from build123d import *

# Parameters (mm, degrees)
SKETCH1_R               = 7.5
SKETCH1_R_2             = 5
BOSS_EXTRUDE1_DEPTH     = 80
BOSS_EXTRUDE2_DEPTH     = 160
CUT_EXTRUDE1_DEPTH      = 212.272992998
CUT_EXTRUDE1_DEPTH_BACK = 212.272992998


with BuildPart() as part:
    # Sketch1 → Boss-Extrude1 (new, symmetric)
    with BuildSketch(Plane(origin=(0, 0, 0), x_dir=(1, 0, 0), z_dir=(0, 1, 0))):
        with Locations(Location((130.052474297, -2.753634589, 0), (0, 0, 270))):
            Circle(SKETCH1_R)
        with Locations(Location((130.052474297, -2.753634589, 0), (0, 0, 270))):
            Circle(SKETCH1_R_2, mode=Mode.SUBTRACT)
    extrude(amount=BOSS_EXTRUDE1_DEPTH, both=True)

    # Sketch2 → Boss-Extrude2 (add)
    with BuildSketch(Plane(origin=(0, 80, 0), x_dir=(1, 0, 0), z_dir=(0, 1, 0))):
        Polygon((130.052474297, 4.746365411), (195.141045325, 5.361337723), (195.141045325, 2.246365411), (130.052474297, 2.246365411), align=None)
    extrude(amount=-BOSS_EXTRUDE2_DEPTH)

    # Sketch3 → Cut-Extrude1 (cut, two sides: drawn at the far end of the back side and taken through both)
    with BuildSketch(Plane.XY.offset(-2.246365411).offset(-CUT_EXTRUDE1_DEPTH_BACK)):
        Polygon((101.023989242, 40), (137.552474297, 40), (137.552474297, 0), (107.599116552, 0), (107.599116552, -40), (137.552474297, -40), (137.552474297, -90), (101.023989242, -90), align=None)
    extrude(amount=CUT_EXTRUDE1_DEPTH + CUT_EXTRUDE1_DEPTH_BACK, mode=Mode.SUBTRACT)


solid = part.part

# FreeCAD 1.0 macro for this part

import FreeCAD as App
import Part
import Sketcher
from FreeCAD import Vector

doc = App.newDocument("Part")
body = doc.addObject("PartDesign::Body", "Body")

# Sketch on XZ plane
sketch1 = body.newObject("Sketcher::SketchObject", "Sketch")
sketch1.AttachmentSupport = (doc.getObject("XZ_Plane"), [""])
sketch1.MapMode = "FlatFace"
sketch1.addGeometry(Part.Circle(Vector(130.052474, 2.753635, 0), Vector(0, 0, 1), 7.5), False)
sketch1.addGeometry(Part.Circle(Vector(130.052474, 2.753635, 0), Vector(0, 0, 1), 5), False)
sketch1.addConstraint(Sketcher.Constraint("Coincident", 1, 3, 0, 3))
sketch1.addConstraint(Sketcher.Constraint("Diameter", 0, 15.0))
sketch1.addConstraint(Sketcher.Constraint("Diameter", 1, 10.0))
sketch1.addConstraint(Sketcher.Constraint("DistanceX", -1, 1, 0, 3, 130.052474))
sketch1.addConstraint(Sketcher.Constraint("DistanceY", -1, 1, 0, 3, 2.753635))
pad1 = body.newObject("PartDesign::Pad", "Pad")
pad1.Profile = sketch1
pad1.Length = 160
pad1.Midplane = True

# Sketch on XZ plane
sketch2 = body.newObject("Sketcher::SketchObject", "Sketch001")
sketch2.AttachmentSupport = (doc.getObject("XZ_Plane"), [""])
sketch2.MapMode = "FlatFace"
sketch2.AttachmentOffset = App.Placement(Vector(0, 0, -80), App.Rotation())
sketch2.addGeometry(Part.LineSegment(Vector(195.141045, -5.361338, 0), Vector(130.052474, -4.746365, 0)), False)
sketch2.addGeometry(Part.LineSegment(Vector(130.052474, -4.746365, 0), Vector(130.052474, -2.246365, 0)), False)
sketch2.addGeometry(Part.LineSegment(Vector(130.052474, -2.246365, 0), Vector(195.141045, -2.246365, 0)), False)
sketch2.addGeometry(Part.LineSegment(Vector(195.141045, -2.246365, 0), Vector(195.141045, -5.361338, 0)), False)
sketch2.addConstraint(Sketcher.Constraint("Coincident", 0, 2, 1, 1))
sketch2.addConstraint(Sketcher.Constraint("Coincident", 1, 2, 2, 1))
sketch2.addConstraint(Sketcher.Constraint("Coincident", 2, 2, 3, 1))
sketch2.addConstraint(Sketcher.Constraint("Coincident", 3, 2, 0, 1))
sketch2.addConstraint(Sketcher.Constraint("Vertical", 1))
sketch2.addConstraint(Sketcher.Constraint("Horizontal", 2))
sketch2.addConstraint(Sketcher.Constraint("Vertical", 3))
sketch2.addConstraint(Sketcher.Constraint("DistanceY", 1, 1, 1, 2, 2.5))
sketch2.addConstraint(Sketcher.Constraint("DistanceX", 2, 1, 2, 2, 65.088571))
sketch2.addConstraint(Sketcher.Constraint("DistanceY", 3, 2, 3, 1, 3.114972))
sketch2.addConstraint(Sketcher.Constraint("DistanceX", -1, 1, 0, 2, 130.052474))
sketch2.addConstraint(Sketcher.Constraint("DistanceY", 0, 2, -1, 1, 4.746365))
pad2 = body.newObject("PartDesign::Pad", "Pad001")
pad2.Profile = sketch2
pad2.Length = 160

# Sketch on XY plane
sketch3 = body.newObject("Sketcher::SketchObject", "Sketch002")
sketch3.AttachmentSupport = (doc.getObject("XY_Plane"), [""])
sketch3.MapMode = "FlatFace"
sketch3.AttachmentOffset = App.Placement(Vector(0, 0, -2.246365), App.Rotation())
sketch3.addGeometry(Part.LineSegment(Vector(137.552474, 40, 0), Vector(101.023989, 40, 0)), False)
sketch3.addGeometry(Part.LineSegment(Vector(101.023989, 40, 0), Vector(101.023989, -90, 0)), False)
sketch3.addGeometry(Part.LineSegment(Vector(101.023989, -90, 0), Vector(137.552474, -90, 0)), False)
sketch3.addGeometry(Part.LineSegment(Vector(137.552474, -90, 0), Vector(137.552474, -40, 0)), False)
sketch3.addGeometry(Part.LineSegment(Vector(137.552474, -40, 0), Vector(107.599117, -40, 0)), False)
sketch3.addGeometry(Part.LineSegment(Vector(107.599117, -40, 0), Vector(107.599117, 0, 0)), False)
sketch3.addGeometry(Part.LineSegment(Vector(107.599117, 0, 0), Vector(137.552474, 0, 0)), False)
sketch3.addGeometry(Part.LineSegment(Vector(137.552474, 0, 0), Vector(137.552474, 40, 0)), False)
sketch3.addConstraint(Sketcher.Constraint("Coincident", 0, 2, 1, 1))
sketch3.addConstraint(Sketcher.Constraint("Coincident", 1, 2, 2, 1))
sketch3.addConstraint(Sketcher.Constraint("Coincident", 2, 2, 3, 1))
sketch3.addConstraint(Sketcher.Constraint("Coincident", 3, 2, 4, 1))
sketch3.addConstraint(Sketcher.Constraint("Coincident", 4, 2, 5, 1))
sketch3.addConstraint(Sketcher.Constraint("Coincident", 5, 2, 6, 1))
sketch3.addConstraint(Sketcher.Constraint("Coincident", 6, 2, 7, 1))
sketch3.addConstraint(Sketcher.Constraint("Coincident", 7, 2, 0, 1))
sketch3.addConstraint(Sketcher.Constraint("Horizontal", 0))
sketch3.addConstraint(Sketcher.Constraint("Vertical", 1))
sketch3.addConstraint(Sketcher.Constraint("Horizontal", 2))
sketch3.addConstraint(Sketcher.Constraint("Vertical", 3))
sketch3.addConstraint(Sketcher.Constraint("Horizontal", 4))
sketch3.addConstraint(Sketcher.Constraint("Vertical", 5))
sketch3.addConstraint(Sketcher.Constraint("Horizontal", 6))
sketch3.addConstraint(Sketcher.Constraint("Vertical", 7))
sketch3.addConstraint(Sketcher.Constraint("Symmetric", 3, 2, 7, 2, -1))
sketch3.addConstraint(Sketcher.Constraint("PointOnObject", 5, 2, -1))
sketch3.addConstraint(Sketcher.Constraint("DistanceY", 1, 2, 1, 1, 130.0))
sketch3.addConstraint(Sketcher.Constraint("DistanceY", 3, 1, 3, 2, 50.0))
sketch3.addConstraint(Sketcher.Constraint("DistanceX", 0, 2, 0, 1, 36.528485))
sketch3.addConstraint(Sketcher.Constraint("DistanceX", 4, 2, 4, 1, 29.953358))
sketch3.addConstraint(Sketcher.Constraint("DistanceX", -1, 1, 0, 2, 101.023989))
pocket1 = body.newObject("PartDesign::Pocket", "Pocket")
pocket1.Profile = sketch3
pocket1.Type = "ThroughAll"
pocket1.Midplane = True

doc.recompute()
